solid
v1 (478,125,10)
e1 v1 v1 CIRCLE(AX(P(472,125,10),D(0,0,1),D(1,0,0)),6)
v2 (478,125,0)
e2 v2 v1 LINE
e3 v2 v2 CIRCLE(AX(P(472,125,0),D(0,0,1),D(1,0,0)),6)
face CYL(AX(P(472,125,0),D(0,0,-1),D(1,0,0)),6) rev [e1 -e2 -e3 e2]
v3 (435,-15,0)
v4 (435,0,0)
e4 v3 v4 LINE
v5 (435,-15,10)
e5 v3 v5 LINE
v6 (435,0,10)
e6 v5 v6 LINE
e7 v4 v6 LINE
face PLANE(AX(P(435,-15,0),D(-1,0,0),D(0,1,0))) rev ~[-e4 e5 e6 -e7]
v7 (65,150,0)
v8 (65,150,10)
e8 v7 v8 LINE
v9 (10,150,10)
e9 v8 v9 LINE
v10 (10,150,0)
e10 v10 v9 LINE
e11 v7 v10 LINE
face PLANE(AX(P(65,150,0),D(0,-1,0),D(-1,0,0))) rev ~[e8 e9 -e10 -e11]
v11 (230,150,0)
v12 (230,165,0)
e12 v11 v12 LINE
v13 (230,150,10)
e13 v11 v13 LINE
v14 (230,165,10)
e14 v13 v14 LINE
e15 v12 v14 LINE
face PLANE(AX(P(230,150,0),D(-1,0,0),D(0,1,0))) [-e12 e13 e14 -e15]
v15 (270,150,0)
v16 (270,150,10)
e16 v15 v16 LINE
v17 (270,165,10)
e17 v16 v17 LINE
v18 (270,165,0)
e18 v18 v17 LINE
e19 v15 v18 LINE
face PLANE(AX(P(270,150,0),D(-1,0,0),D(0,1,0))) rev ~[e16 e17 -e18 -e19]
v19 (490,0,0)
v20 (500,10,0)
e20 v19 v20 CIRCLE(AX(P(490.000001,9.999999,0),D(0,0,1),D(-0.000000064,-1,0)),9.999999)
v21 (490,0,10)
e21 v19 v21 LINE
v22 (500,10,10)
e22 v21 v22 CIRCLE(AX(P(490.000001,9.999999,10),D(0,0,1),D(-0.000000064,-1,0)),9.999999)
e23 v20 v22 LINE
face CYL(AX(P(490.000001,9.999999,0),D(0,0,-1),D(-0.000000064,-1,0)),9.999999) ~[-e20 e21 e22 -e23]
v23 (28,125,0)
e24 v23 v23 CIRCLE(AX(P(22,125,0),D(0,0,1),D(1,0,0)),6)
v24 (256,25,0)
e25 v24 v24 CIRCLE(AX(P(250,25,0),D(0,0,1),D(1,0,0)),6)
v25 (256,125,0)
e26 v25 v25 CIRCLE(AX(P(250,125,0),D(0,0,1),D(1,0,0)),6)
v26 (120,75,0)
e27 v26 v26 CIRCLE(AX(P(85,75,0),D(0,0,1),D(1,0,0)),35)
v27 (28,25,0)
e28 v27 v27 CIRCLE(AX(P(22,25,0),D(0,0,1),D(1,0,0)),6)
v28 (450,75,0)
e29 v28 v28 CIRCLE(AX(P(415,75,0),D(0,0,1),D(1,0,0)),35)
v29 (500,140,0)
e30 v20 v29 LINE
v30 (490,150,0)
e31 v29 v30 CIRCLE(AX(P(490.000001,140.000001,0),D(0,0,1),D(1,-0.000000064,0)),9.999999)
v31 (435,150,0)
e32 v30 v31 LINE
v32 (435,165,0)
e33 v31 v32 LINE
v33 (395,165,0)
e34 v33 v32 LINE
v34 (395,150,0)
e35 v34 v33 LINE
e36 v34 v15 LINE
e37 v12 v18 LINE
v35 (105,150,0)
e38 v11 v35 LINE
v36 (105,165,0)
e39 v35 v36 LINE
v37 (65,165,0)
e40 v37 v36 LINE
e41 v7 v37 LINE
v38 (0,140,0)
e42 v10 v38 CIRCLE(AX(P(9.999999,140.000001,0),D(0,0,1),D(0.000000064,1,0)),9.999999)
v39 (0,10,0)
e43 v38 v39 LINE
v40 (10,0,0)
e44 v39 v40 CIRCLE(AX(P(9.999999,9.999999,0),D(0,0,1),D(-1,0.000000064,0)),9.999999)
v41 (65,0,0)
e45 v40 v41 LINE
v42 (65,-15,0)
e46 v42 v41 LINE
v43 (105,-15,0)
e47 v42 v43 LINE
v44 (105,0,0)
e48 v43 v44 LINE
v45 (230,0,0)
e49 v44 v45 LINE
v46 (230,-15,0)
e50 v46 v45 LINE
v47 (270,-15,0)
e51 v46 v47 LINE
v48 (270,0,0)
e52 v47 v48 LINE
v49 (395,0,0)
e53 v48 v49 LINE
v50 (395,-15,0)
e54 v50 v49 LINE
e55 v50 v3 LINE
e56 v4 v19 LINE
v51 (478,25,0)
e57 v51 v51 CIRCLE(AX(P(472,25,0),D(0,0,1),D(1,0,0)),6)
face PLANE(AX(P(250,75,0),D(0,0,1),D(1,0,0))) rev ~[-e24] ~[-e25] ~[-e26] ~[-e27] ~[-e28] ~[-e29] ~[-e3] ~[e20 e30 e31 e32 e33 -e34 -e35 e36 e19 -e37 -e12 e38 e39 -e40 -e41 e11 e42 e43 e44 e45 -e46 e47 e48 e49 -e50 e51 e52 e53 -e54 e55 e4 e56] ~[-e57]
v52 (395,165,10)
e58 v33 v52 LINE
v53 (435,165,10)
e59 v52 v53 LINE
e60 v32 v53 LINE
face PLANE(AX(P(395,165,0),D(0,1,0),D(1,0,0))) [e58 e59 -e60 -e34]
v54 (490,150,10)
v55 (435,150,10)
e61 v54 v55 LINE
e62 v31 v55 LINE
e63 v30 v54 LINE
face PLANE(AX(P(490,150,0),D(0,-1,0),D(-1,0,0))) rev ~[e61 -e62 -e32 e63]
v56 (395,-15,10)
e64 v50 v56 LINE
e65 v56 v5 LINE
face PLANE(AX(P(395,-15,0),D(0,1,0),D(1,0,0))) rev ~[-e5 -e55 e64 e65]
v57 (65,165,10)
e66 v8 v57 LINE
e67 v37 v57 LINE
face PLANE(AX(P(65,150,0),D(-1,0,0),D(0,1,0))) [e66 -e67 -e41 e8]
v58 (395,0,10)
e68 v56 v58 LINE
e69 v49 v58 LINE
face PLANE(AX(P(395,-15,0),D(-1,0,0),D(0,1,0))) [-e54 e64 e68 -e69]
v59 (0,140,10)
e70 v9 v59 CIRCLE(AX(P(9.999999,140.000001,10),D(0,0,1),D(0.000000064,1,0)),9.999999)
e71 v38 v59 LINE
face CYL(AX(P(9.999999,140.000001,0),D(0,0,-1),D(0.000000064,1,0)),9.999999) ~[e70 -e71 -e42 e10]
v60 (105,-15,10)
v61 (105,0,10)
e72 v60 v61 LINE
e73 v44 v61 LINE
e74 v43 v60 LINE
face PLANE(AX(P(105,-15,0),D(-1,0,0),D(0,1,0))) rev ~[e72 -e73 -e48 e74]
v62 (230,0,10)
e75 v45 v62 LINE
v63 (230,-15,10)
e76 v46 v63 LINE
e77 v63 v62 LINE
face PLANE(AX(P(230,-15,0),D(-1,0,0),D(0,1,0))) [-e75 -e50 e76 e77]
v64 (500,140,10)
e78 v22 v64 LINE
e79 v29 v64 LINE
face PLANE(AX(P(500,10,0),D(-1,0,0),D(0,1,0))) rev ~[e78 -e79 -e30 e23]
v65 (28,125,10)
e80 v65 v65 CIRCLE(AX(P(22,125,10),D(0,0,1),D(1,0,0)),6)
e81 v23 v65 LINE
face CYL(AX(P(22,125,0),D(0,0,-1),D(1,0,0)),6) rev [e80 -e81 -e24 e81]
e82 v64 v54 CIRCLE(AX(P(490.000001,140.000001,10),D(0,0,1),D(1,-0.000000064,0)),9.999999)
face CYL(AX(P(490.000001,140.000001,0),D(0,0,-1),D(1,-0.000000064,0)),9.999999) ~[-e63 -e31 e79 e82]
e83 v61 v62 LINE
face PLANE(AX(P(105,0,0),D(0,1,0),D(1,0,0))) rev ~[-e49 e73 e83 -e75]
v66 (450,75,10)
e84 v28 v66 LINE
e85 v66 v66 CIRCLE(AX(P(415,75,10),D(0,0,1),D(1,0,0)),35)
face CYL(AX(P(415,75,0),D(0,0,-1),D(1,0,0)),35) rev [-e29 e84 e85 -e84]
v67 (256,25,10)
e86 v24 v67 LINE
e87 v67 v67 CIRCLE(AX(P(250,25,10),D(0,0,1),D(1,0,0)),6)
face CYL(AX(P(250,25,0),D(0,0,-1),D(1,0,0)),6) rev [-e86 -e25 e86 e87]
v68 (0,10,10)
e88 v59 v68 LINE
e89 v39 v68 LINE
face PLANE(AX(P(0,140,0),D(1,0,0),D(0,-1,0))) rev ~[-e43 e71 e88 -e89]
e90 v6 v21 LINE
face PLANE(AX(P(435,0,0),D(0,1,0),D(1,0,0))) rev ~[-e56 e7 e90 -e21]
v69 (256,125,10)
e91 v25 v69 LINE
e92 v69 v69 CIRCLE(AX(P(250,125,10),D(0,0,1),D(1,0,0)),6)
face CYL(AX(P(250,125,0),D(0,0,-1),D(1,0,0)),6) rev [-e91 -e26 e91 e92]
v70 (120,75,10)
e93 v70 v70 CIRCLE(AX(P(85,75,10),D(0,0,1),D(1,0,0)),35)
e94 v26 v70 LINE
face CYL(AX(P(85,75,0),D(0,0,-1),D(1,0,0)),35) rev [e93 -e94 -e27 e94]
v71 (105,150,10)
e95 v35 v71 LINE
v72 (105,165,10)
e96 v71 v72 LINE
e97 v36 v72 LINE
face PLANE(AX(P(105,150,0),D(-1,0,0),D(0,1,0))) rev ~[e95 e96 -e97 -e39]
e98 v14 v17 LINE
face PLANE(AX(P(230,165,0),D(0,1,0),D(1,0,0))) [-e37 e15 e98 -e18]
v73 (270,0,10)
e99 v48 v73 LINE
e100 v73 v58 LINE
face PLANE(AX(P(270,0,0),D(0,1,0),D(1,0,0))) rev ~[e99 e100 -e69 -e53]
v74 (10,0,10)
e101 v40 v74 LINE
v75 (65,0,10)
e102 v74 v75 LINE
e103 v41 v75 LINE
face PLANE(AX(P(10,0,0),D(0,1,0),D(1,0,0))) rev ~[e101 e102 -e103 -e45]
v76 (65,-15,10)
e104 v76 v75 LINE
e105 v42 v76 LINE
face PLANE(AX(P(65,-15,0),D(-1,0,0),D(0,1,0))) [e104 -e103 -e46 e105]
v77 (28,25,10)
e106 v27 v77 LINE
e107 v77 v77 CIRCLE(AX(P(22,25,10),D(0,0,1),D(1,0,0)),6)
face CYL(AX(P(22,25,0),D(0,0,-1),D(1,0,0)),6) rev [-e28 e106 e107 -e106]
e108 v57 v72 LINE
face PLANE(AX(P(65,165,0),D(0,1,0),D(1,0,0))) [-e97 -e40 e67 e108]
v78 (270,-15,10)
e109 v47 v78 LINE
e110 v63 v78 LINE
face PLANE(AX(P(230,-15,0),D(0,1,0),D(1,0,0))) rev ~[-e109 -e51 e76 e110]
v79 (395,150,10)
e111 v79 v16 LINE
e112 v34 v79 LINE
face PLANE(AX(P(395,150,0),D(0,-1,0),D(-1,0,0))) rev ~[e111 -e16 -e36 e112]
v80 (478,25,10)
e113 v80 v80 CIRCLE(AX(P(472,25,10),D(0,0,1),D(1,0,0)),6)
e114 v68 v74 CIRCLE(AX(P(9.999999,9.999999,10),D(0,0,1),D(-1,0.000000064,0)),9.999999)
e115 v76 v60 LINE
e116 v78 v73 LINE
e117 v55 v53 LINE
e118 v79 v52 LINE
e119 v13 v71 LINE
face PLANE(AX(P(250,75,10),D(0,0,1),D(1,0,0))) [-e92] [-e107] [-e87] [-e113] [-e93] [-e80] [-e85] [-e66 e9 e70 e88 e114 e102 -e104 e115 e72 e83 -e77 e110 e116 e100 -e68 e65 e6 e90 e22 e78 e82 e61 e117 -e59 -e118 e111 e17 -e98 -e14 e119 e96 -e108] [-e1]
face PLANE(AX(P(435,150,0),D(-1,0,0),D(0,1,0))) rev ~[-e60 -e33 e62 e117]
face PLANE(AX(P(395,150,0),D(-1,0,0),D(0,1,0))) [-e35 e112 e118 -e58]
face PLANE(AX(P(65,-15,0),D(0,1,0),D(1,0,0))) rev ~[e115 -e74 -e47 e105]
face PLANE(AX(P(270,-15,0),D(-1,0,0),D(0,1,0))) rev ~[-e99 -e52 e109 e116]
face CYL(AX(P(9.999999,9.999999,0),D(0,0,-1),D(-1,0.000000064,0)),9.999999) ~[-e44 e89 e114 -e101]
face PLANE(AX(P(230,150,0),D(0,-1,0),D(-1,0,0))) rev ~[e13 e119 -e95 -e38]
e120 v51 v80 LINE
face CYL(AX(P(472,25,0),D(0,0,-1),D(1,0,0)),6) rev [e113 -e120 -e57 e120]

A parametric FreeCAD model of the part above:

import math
import FreeCAD as App
import Part
import Sketcher
from FreeCAD import Vector

doc = App.newDocument("Part")
body = doc.addObject("PartDesign::Body", "Body")

# Sketch on XY plane
sketch1 = body.newObject("Sketcher::SketchObject", "Sketch")
sketch1.AttachmentSupport = (doc.getObject("XY_Plane"), [""])
sketch1.MapMode = "FlatFace"
sketch1.addGeometry([
    Part.ArcOfCircle(Part.Circle(Vector(10, 10, 0), Vector(0, 0, 1), 10), math.radians(180), math.radians(270)),  # 0
    Part.LineSegment(Vector(10, 0, 0), Vector(65, 0, 0)),  # 1
    Part.LineSegment(Vector(65, 0, 0), Vector(65, -15, 0)),  # 2
    Part.LineSegment(Vector(65, -15, 0), Vector(105, -15, 0)),  # 3
    Part.LineSegment(Vector(105, -15, 0), Vector(105, 0, 0)),  # 4
    Part.LineSegment(Vector(105, 0, 0), Vector(230, 0, 0)),  # 5
    Part.LineSegment(Vector(230, 0, 0), Vector(230, -15, 0)),  # 6
    Part.LineSegment(Vector(230, -15, 0), Vector(270, -15, 0)),  # 7
    Part.LineSegment(Vector(270, -15, 0), Vector(270, 0, 0)),  # 8
    Part.LineSegment(Vector(270, 0, 0), Vector(395, 0, 0)),  # 9
    Part.LineSegment(Vector(395, 0, 0), Vector(395, -15, 0)),  # 10
    Part.LineSegment(Vector(395, -15, 0), Vector(435, -15, 0)),  # 11
    Part.LineSegment(Vector(435, -15, 0), Vector(435, 0, 0)),  # 12
    Part.LineSegment(Vector(435, 0, 0), Vector(490, 0, 0)),  # 13
    Part.ArcOfCircle(Part.Circle(Vector(490, 10, 0), Vector(0, 0, 1), 10), math.radians(-90), math.radians(0)),  # 14
    Part.LineSegment(Vector(500, 10, 0), Vector(500, 140, 0)),  # 15
    Part.ArcOfCircle(Part.Circle(Vector(490, 140, 0), Vector(0, 0, 1), 10), math.radians(0), math.radians(90)),  # 16
    Part.LineSegment(Vector(490, 150, 0), Vector(435, 150, 0)),  # 17
    Part.LineSegment(Vector(435, 150, 0), Vector(435, 165, 0)),  # 18
    Part.LineSegment(Vector(435, 165, 0), Vector(395, 165, 0)),  # 19
    Part.LineSegment(Vector(395, 165, 0), Vector(395, 150, 0)),  # 20
    Part.LineSegment(Vector(395, 150, 0), Vector(270, 150, 0)),  # 21
    Part.LineSegment(Vector(270, 150, 0), Vector(270, 165, 0)),  # 22
    Part.LineSegment(Vector(270, 165, 0), Vector(230, 165, 0)),  # 23
    Part.LineSegment(Vector(230, 165, 0), Vector(230, 150, 0)),  # 24
    Part.LineSegment(Vector(230, 150, 0), Vector(105, 150, 0)),  # 25
    Part.LineSegment(Vector(105, 150, 0), Vector(105, 165, 0)),  # 26
    Part.LineSegment(Vector(105, 165, 0), Vector(65, 165, 0)),  # 27
    Part.LineSegment(Vector(65, 165, 0), Vector(65, 150, 0)),  # 28
    Part.LineSegment(Vector(65, 150, 0), Vector(10, 150, 0)),  # 29
    Part.ArcOfCircle(Part.Circle(Vector(10, 140, 0), Vector(0, 0, 1), 10), math.radians(90), math.radians(180)),  # 30
    Part.LineSegment(Vector(0, 140, 0), Vector(0, 10, 0)),  # 31
    Part.Circle(Vector(22, 25, 0), Vector(0, 0, 1), 6),  # 32
    Part.Circle(Vector(250, 25, 0), Vector(0, 0, 1), 6),  # 33
    Part.Circle(Vector(472, 25, 0), Vector(0, 0, 1), 6),  # 34
    Part.Circle(Vector(85, 75, 0), Vector(0, 0, 1), 35),  # 35
    Part.Circle(Vector(22, 125, 0), Vector(0, 0, 1), 6),  # 36
    Part.Circle(Vector(415, 75, 0), Vector(0, 0, 1), 35),  # 37
    Part.Circle(Vector(250, 125, 0), Vector(0, 0, 1), 6),  # 38
    Part.Circle(Vector(472, 125, 0), Vector(0, 0, 1), 6),  # 39
], False)
sketch1.addConstraint([
    Sketcher.Constraint("Tangent", 0, 2, 1, 1),
    Sketcher.Constraint("Coincident", 1, 2, 2, 1),
    Sketcher.Constraint("Coincident", 2, 2, 3, 1),
    Sketcher.Constraint("Coincident", 3, 2, 4, 1),
    Sketcher.Constraint("Coincident", 4, 2, 5, 1),
    Sketcher.Constraint("Coincident", 5, 2, 6, 1),
    Sketcher.Constraint("Coincident", 6, 2, 7, 1),
    Sketcher.Constraint("Coincident", 7, 2, 8, 1),
    Sketcher.Constraint("Coincident", 8, 2, 9, 1),
    Sketcher.Constraint("Coincident", 9, 2, 10, 1),
    Sketcher.Constraint("Coincident", 10, 2, 11, 1),
    Sketcher.Constraint("Coincident", 11, 2, 12, 1),
    Sketcher.Constraint("Coincident", 12, 2, 13, 1),
    Sketcher.Constraint("Tangent", 13, 2, 14, 1),
    Sketcher.Constraint("Tangent", 14, 2, 15, 1),
    Sketcher.Constraint("Tangent", 15, 2, 16, 1),
    Sketcher.Constraint("Tangent", 16, 2, 17, 1),
    Sketcher.Constraint("Coincident", 17, 2, 18, 1),
    Sketcher.Constraint("Coincident", 18, 2, 19, 1),
    Sketcher.Constraint("Coincident", 19, 2, 20, 1),
    Sketcher.Constraint("Coincident", 20, 2, 21, 1),
    Sketcher.Constraint("Coincident", 21, 2, 22, 1),
    Sketcher.Constraint("Coincident", 22, 2, 23, 1),
    Sketcher.Constraint("Coincident", 23, 2, 24, 1),
    Sketcher.Constraint("Coincident", 24, 2, 25, 1),
    Sketcher.Constraint("Coincident", 25, 2, 26, 1),
    Sketcher.Constraint("Coincident", 26, 2, 27, 1),
    Sketcher.Constraint("Coincident", 27, 2, 28, 1),
    Sketcher.Constraint("Coincident", 28, 2, 29, 1),
    Sketcher.Constraint("Tangent", 29, 2, 30, 1),
    Sketcher.Constraint("Tangent", 30, 2, 31, 1),
    Sketcher.Constraint("Tangent", 31, 2, 0, 1),
    Sketcher.Constraint("Horizontal", 1),
    Sketcher.Constraint("Vertical", 2),
    Sketcher.Constraint("Horizontal", 3),
    Sketcher.Constraint("Vertical", 4),
    Sketcher.Constraint("Horizontal", 5),
    Sketcher.Constraint("Vertical", 6),
    Sketcher.Constraint("Horizontal", 7),
    Sketcher.Constraint("Vertical", 8),
    Sketcher.Constraint("Horizontal", 9),
    Sketcher.Constraint("Vertical", 10),
    Sketcher.Constraint("Horizontal", 11),
    Sketcher.Constraint("Vertical", 12),
    Sketcher.Constraint("Horizontal", 13),
    Sketcher.Constraint("Vertical", 15),
    Sketcher.Constraint("Horizontal", 17),
    Sketcher.Constraint("Vertical", 18),
    Sketcher.Constraint("Horizontal", 19),
    Sketcher.Constraint("Vertical", 20),
    Sketcher.Constraint("Horizontal", 21),
    Sketcher.Constraint("Vertical", 22),
    Sketcher.Constraint("Horizontal", 23),
    Sketcher.Constraint("Vertical", 24),
    Sketcher.Constraint("Horizontal", 25),
    Sketcher.Constraint("Vertical", 26),
    Sketcher.Constraint("Horizontal", 27),
    Sketcher.Constraint("Vertical", 28),
    Sketcher.Constraint("Horizontal", 29),
    Sketcher.Constraint("Vertical", 31),
    Sketcher.Constraint("Equal", 0, 14),
    Sketcher.Constraint("Equal", 14, 16),
    Sketcher.Constraint("Equal", 16, 30),
    Sketcher.Constraint("Equal", 32, 33),
    Sketcher.Constraint("Equal", 33, 34),
    Sketcher.Constraint("Equal", 34, 36),
    Sketcher.Constraint("Equal", 35, 37),
    Sketcher.Constraint("Equal", 36, 38),
    Sketcher.Constraint("Equal", 38, 39),
    Sketcher.Constraint("PointOnObject", 0, 2, -1),
    Sketcher.Constraint("PointOnObject", 4, 2, -1),
    Sketcher.Constraint("PointOnObject", 8, 2, -1),
    Sketcher.Constraint("PointOnObject", 12, 2, -1),
    Sketcher.Constraint("PointOnObject", 30, 2, -2),
    Sketcher.Constraint("Horizontal", 16, 3, 30, 3),
    Sketcher.Constraint("Horizontal", 32, 3, 33, 3),
    Sketcher.Constraint("Horizontal", 33, 3, 34, 3),
    Sketcher.Constraint("Horizontal", 35, 3, 37, 3),
    Sketcher.Constraint("Horizontal", 36, 3, 38, 3),
    Sketcher.Constraint("Horizontal", 38, 3, 39, 3),
    Sketcher.Constraint("Horizontal", 3, 2, 6, 2),
    Sketcher.Constraint("Horizontal", 7, 2, 10, 2),
    Sketcher.Constraint("Horizontal", 17, 2, 20, 2),
    Sketcher.Constraint("Horizontal", 19, 2, 22, 2),
    Sketcher.Constraint("Horizontal", 21, 2, 24, 2),
    Sketcher.Constraint("Horizontal", 23, 2, 26, 2),
    Sketcher.Constraint("Vertical", 32, 3, 36, 3),
    Sketcher.Constraint("Vertical", 33, 3, 38, 3),
    Sketcher.Constraint("Vertical", 34, 3, 39, 3),
    Sketcher.Constraint("Vertical", 12, 2, 17, 2),
    Sketcher.Constraint("Vertical", 10, 2, 19, 2),
    Sketcher.Constraint("Vertical", 8, 2, 21, 2),
    Sketcher.Constraint("Vertical", 6, 2, 23, 2),
    Sketcher.Constraint("Vertical", 4, 2, 25, 2),
    Sketcher.Constraint("Vertical", 2, 2, 27, 2),
    Sketcher.Constraint("Equal", 3, 7),
    Sketcher.Constraint("Equal", 5, 9),
    Sketcher.Constraint("Equal", 7, 11),
    Sketcher.Constraint("Equal", 1, 13),
    Sketcher.Constraint("Equal", 12, 18),
    Sketcher.Constraint("Diameter", 32, 12.0),
    Sketcher.Constraint("Diameter", 35, 70.0),
    Sketcher.Constraint("Radius", 0, 9.999999),
    Sketcher.Constraint("DistanceX", 1, 1, 1, 2, 55.0),
    Sketcher.Constraint("DistanceX", 3, 1, 3, 2, 40.0),
    Sketcher.Constraint("DistanceX", 5, 1, 5, 2, 125.0),
    Sketcher.Constraint("DistanceY", 2, 2, 2, 1, 15.0),
    Sketcher.Constraint("DistanceY", 15, 1, 15, 2, 130.0),
    Sketcher.Constraint("DistanceX", -1, 1, 32, 3, 22.0),
    Sketcher.Constraint("DistanceY", -1, 1, 32, 3, 25.0),
    Sketcher.Constraint("DistanceX", -1, 1, 33, 3, 250.0),
    Sketcher.Constraint("DistanceX", -1, 1, 34, 3, 472.0),
    Sketcher.Constraint("DistanceX", -1, 1, 35, 3, 85.0),
    Sketcher.Constraint("DistanceY", -1, 1, 35, 3, 75.0),
    Sketcher.Constraint("DistanceY", -1, 1, 36, 3, 125.0),
    Sketcher.Constraint("DistanceX", -1, 1, 37, 3, 415.0),
])
pad1 = body.newObject("PartDesign::Pad", "Pad")
pad1.Profile = sketch1
pad1.Length = 10

doc.recompute()
